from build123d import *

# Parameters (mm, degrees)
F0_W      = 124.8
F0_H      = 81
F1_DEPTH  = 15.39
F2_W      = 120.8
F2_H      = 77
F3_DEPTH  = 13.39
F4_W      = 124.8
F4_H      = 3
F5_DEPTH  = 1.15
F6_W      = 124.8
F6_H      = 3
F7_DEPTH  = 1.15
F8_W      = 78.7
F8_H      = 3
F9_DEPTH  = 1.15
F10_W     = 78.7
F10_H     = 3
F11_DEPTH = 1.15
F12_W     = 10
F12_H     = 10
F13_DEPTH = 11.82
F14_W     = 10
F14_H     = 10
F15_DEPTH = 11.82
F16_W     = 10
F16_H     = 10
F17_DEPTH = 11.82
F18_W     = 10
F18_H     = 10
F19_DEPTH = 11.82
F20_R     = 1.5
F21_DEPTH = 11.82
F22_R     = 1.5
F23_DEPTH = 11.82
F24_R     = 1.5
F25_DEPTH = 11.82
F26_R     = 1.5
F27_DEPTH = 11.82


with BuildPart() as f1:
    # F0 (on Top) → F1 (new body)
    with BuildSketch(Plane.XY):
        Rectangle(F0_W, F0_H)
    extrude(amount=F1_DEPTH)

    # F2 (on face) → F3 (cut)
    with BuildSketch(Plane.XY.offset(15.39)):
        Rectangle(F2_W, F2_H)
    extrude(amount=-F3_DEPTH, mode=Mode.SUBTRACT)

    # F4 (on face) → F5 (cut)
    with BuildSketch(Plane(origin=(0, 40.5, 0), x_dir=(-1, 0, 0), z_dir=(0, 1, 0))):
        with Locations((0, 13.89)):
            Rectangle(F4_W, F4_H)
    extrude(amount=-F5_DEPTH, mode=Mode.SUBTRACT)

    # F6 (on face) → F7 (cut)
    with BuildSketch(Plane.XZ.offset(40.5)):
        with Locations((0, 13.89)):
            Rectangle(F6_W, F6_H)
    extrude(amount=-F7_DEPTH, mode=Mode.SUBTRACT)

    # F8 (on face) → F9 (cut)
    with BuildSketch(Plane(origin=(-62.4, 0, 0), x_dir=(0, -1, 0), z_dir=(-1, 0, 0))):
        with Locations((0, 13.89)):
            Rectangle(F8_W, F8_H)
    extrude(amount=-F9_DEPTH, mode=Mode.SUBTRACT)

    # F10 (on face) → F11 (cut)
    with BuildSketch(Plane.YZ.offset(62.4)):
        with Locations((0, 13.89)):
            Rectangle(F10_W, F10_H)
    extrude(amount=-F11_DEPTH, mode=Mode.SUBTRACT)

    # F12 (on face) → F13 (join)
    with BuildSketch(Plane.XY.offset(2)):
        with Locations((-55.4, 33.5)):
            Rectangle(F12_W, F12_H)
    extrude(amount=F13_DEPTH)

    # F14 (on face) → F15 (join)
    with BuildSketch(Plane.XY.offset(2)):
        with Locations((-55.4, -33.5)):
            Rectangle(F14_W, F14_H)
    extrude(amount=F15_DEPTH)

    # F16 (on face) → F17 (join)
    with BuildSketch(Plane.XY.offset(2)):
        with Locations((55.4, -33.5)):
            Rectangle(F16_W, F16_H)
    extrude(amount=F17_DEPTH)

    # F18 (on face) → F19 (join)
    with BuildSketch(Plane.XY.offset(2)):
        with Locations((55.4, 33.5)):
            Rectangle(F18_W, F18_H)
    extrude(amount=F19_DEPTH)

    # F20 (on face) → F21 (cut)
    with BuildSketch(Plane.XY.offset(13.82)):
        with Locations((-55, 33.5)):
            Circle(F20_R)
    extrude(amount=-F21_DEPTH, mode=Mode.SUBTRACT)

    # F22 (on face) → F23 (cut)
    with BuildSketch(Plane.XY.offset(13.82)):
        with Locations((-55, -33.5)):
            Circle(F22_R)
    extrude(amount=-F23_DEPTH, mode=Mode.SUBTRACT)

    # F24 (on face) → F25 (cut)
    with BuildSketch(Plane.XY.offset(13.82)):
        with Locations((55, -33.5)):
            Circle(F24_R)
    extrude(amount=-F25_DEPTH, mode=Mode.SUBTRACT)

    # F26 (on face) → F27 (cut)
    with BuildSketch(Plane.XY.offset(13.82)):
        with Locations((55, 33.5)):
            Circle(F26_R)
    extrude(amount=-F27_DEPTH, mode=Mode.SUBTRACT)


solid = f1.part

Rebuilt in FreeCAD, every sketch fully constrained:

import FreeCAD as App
import Part
import Sketcher
from FreeCAD import Vector
Q = App.Units.Quantity


def add_polygon(sketch, points):
    """Adds a closed chain of lines whose ends are joined by coincident constraints."""
    first, n = sketch.GeometryCount, len(points)
    for a, b in zip(points, points[1:] + points[:1]):
        sketch.addGeometry(Part.LineSegment(App.Vector(*a, 0), App.Vector(*b, 0)), False)
    for i in range(n):
        sketch.addConstraint(Sketcher.Constraint("Coincident", first + i, 2, first + (i + 1) % n, 1))

doc = App.newDocument("Part")
body = doc.addObject("PartDesign::Body", "Body")

# Sketch on XY plane
sketch1 = body.newObject("Sketcher::SketchObject", "Sketch")
sketch1.AttachmentSupport = (doc.getObject("XY_Plane"), [""])
sketch1.MapMode = "FlatFace"
add_polygon(sketch1, [(-62, 40), (-62, -40), (62, -40), (62, 40)])  # lines 0-3
sketch1.addConstraint(Sketcher.Constraint("Vertical", 0))
sketch1.addConstraint(Sketcher.Constraint("Horizontal", 1))
sketch1.addConstraint(Sketcher.Constraint("Vertical", 2))
sketch1.addConstraint(Sketcher.Constraint("Horizontal", 3))
sketch1.addConstraint(Sketcher.Constraint("Symmetric", 0, 2, 2, 2, -1, 1))
sketch1.addConstraint(Sketcher.Constraint("DistanceY", 0, 2, 0, 1, Q("81 mm")))
sketch1.addConstraint(Sketcher.Constraint("DistanceX", 1, 1, 1, 2, Q("124.8 mm")))
pad1 = body.newObject("PartDesign::Pad", "Pad")
pad1.Profile = sketch1
pad1.Length = 15.39

# Sketch on XY plane
sketch2 = body.newObject("Sketcher::SketchObject", "Sketch001")
sketch2.AttachmentSupport = (doc.getObject("XY_Plane"), [""])
sketch2.MapMode = "FlatFace"
sketch2.AttachmentOffset = App.Placement(Vector(0, 0, 15.39), App.Rotation())
add_polygon(sketch2, [(-60, 38), (-60, -38), (60, -38), (60, 38)])  # lines 0-3
sketch2.addConstraint(Sketcher.Constraint("Vertical", 0))
sketch2.addConstraint(Sketcher.Constraint("Horizontal", 1))
sketch2.addConstraint(Sketcher.Constraint("Vertical", 2))
sketch2.addConstraint(Sketcher.Constraint("Horizontal", 3))
sketch2.addConstraint(Sketcher.Constraint("Symmetric", 0, 2, 2, 2, -1, 1))
sketch2.addConstraint(Sketcher.Constraint("DistanceY", 0, 2, 0, 1, Q("77 mm")))
sketch2.addConstraint(Sketcher.Constraint("DistanceX", 1, 1, 1, 2, Q("120.8 mm")))
pocket1 = body.newObject("PartDesign::Pocket", "Pocket")
pocket1.Profile = sketch2
pocket1.Length = 13.39

# Sketch on XZ plane
sketch3 = body.newObject("Sketcher::SketchObject", "Sketch002")
sketch3.AttachmentSupport = (doc.getObject("XZ_Plane"), [""])
sketch3.MapMode = "FlatFace"
sketch3.AttachmentOffset = App.Placement(Vector(0, 0, -40.5), App.Rotation())
add_polygon(sketch3, [(62.4, 15.4), (62.4, 12.4), (-62.4, 12.4), (-62.4, 15.4)])  # lines 0-3
sketch3.addConstraint(Sketcher.Constraint("Vertical", 0))
sketch3.addConstraint(Sketcher.Constraint("Horizontal", 1))
sketch3.addConstraint(Sketcher.Constraint("Vertical", 2))
sketch3.addConstraint(Sketcher.Constraint("Horizontal", 3))
sketch3.addConstraint(Sketcher.Constraint("DistanceY", 0, 2, 0, 1, Q("3 mm")))
sketch3.addConstraint(Sketcher.Constraint("DistanceX", 1, 2, 1, 1, Q("124.8 mm")))
sketch3.addConstraint(Sketcher.Constraint("DistanceX", -1, 1, 0, 2, Q("62.4 mm")))
sketch3.addConstraint(Sketcher.Constraint("DistanceY", -1, 1, 0, 2, Q("12.39 mm")))
pocket2 = body.newObject("PartDesign::Pocket", "Pocket001")
pocket2.Profile = sketch3
pocket2.Length = 1.15
pocket2.Reversed = True

# Sketch on XZ plane
sketch4 = body.newObject("Sketcher::SketchObject", "Sketch003")
sketch4.AttachmentSupport = (doc.getObject("XZ_Plane"), [""])
sketch4.MapMode = "FlatFace"
sketch4.AttachmentOffset = App.Placement(Vector(0, 0, 40.5), App.Rotation())
add_polygon(sketch4, [(-62.4, 15.4), (-62.4, 12.4), (62.4, 12.4), (62.4, 15.4)])  # lines 0-3
sketch4.addConstraint(Sketcher.Constraint("Vertical", 0))
sketch4.addConstraint(Sketcher.Constraint("Horizontal", 1))
sketch4.addConstraint(Sketcher.Constraint("Vertical", 2))
sketch4.addConstraint(Sketcher.Constraint("Horizontal", 3))
sketch4.addConstraint(Sketcher.Constraint("DistanceY", 0, 2, 0, 1, Q("3 mm")))
sketch4.addConstraint(Sketcher.Constraint("DistanceX", 1, 1, 1, 2, Q("124.8 mm")))
sketch4.addConstraint(Sketcher.Constraint("DistanceX", 0, 2, -1, 1, Q("62.4 mm")))
sketch4.addConstraint(Sketcher.Constraint("DistanceY", -1, 1, 0, 2, Q("12.39 mm")))
pocket3 = body.newObject("PartDesign::Pocket", "Pocket002")
pocket3.Profile = sketch4
pocket3.Length = 1.15

# Sketch on YZ plane
sketch5 = body.newObject("Sketcher::SketchObject", "Sketch004")
sketch5.AttachmentSupport = (doc.getObject("YZ_Plane"), [""])
sketch5.MapMode = "FlatFace"
sketch5.AttachmentOffset = App.Placement(Vector(0, 0, -62.4), App.Rotation())
add_polygon(sketch5, [(39.4, 15.4), (39.4, 12.4), (-39.4, 12.4), (-39.4, 15.4)])  # lines 0-3
sketch5.addConstraint(Sketcher.Constraint("Vertical", 0))
sketch5.addConstraint(Sketcher.Constraint("Horizontal", 1))
sketch5.addConstraint(Sketcher.Constraint("Vertical", 2))
sketch5.addConstraint(Sketcher.Constraint("Horizontal", 3))
sketch5.addConstraint(Sketcher.Constraint("DistanceY", 0, 2, 0, 1, Q("3 mm")))
sketch5.addConstraint(Sketcher.Constraint("DistanceX", 1, 2, 1, 1, Q("78.7 mm")))
sketch5.addConstraint(Sketcher.Constraint("DistanceX", -1, 1, 0, 2, Q("39.35 mm")))
sketch5.addConstraint(Sketcher.Constraint("DistanceY", -1, 1, 0, 2, Q("12.39 mm")))
pocket4 = body.newObject("PartDesign::Pocket", "Pocket003")
pocket4.Profile = sketch5
pocket4.Length = 1.15
pocket4.Reversed = True

# Sketch on YZ plane
sketch6 = body.newObject("Sketcher::SketchObject", "Sketch005")
sketch6.AttachmentSupport = (doc.getObject("YZ_Plane"), [""])
sketch6.MapMode = "FlatFace"
sketch6.AttachmentOffset = App.Placement(Vector(0, 0, 62.4), App.Rotation())
add_polygon(sketch6, [(-39.4, 15.4), (-39.4, 12.4), (39.4, 12.4), (39.4, 15.4)])  # lines 0-3
sketch6.addConstraint(Sketcher.Constraint("Vertical", 0))
sketch6.addConstraint(Sketcher.Constraint("Horizontal", 1))
sketch6.addConstraint(Sketcher.Constraint("Vertical", 2))
sketch6.addConstraint(Sketcher.Constraint("Horizontal", 3))
sketch6.addConstraint(Sketcher.Constraint("DistanceY", 0, 2, 0, 1, Q("3 mm")))
sketch6.addConstraint(Sketcher.Constraint("DistanceX", 1, 1, 1, 2, Q("78.7 mm")))
sketch6.addConstraint(Sketcher.Constraint("DistanceX", 0, 2, -1, 1, Q("39.35 mm")))
sketch6.addConstraint(Sketcher.Constraint("DistanceY", -1, 1, 0, 2, Q("12.39 mm")))
pocket5 = body.newObject("PartDesign::Pocket", "Pocket004")
pocket5.Profile = sketch6
pocket5.Length = 1.15

# Sketch on XY plane
sketch7 = body.newObject("Sketcher::SketchObject", "Sketch006")
sketch7.AttachmentSupport = (doc.getObject("XY_Plane"), [""])
sketch7.MapMode = "FlatFace"
sketch7.AttachmentOffset = App.Placement(Vector(0, 0, 2), App.Rotation())
add_polygon(sketch7, [(-60, 38), (-60, 28), (-50, 28), (-50, 38)])  # lines 0-3
sketch7.addConstraint(Sketcher.Constraint("Vertical", 0))
sketch7.addConstraint(Sketcher.Constraint("Horizontal", 1))
sketch7.addConstraint(Sketcher.Constraint("Vertical", 2))
sketch7.addConstraint(Sketcher.Constraint("Horizontal", 3))
sketch7.addConstraint(Sketcher.Constraint("Equal", 3, 0))
sketch7.addConstraint(Sketcher.Constraint("DistanceX", 1, 1, 1, 2, Q("10 mm")))
sketch7.addConstraint(Sketcher.Constraint("DistanceX", 0, 2, -1, 1, Q("60.4 mm")))
sketch7.addConstraint(Sketcher.Constraint("DistanceY", -1, 1, 0, 2, Q("28.5 mm")))
pad2 = body.newObject("PartDesign::Pad", "Pad001")
pad2.Profile = sketch7
pad2.Length = 11.82

# Sketch on XY plane
sketch8 = body.newObject("Sketcher::SketchObject", "Sketch007")
sketch8.AttachmentSupport = (doc.getObject("XY_Plane"), [""])
sketch8.MapMode = "FlatFace"
sketch8.AttachmentOffset = App.Placement(Vector(0, 0, 2), App.Rotation())
add_polygon(sketch8, [(-60, -28), (-60, -38), (-50, -38), (-50, -28)])  # lines 0-3
sketch8.addConstraint(Sketcher.Constraint("Vertical", 0))
sketch8.addConstraint(Sketcher.Constraint("Horizontal", 1))
sketch8.addConstraint(Sketcher.Constraint("Vertical", 2))
sketch8.addConstraint(Sketcher.Constraint("Horizontal", 3))
sketch8.addConstraint(Sketcher.Constraint("Equal", 3, 0))
sketch8.addConstraint(Sketcher.Constraint("DistanceX", 1, 1, 1, 2, Q("10 mm")))
sketch8.addConstraint(Sketcher.Constraint("DistanceX", 0, 2, -1, 1, Q("60.4 mm")))
sketch8.addConstraint(Sketcher.Constraint("DistanceY", 0, 2, -1, 1, Q("38.5 mm")))
pad3 = body.newObject("PartDesign::Pad", "Pad002")
pad3.Profile = sketch8
pad3.Length = 11.82

# Sketch on XY plane
sketch9 = body.newObject("Sketcher::SketchObject", "Sketch008")
sketch9.AttachmentSupport = (doc.getObject("XY_Plane"), [""])
sketch9.MapMode = "FlatFace"
sketch9.AttachmentOffset = App.Placement(Vector(0, 0, 2), App.Rotation())
add_polygon(sketch9, [(50, -28), (50, -38), (60, -38), (60, -28)])  # lines 0-3
sketch9.addConstraint(Sketcher.Constraint("Vertical", 0))
sketch9.addConstraint(Sketcher.Constraint("Horizontal", 1))
sketch9.addConstraint(Sketcher.Constraint("Vertical", 2))
sketch9.addConstraint(Sketcher.Constraint("Horizontal", 3))
sketch9.addConstraint(Sketcher.Constraint("Equal", 3, 0))
sketch9.addConstraint(Sketcher.Constraint("DistanceX", 1, 1, 1, 2, Q("10 mm")))
sketch9.addConstraint(Sketcher.Constraint("DistanceX", -1, 1, 0, 2, Q("50.4 mm")))
sketch9.addConstraint(Sketcher.Constraint("DistanceY", 0, 2, -1, 1, Q("38.5 mm")))
pad4 = body.newObject("PartDesign::Pad", "Pad003")
pad4.Profile = sketch9
pad4.Length = 11.82

# Sketch on XY plane
sketch10 = body.newObject("Sketcher::SketchObject", "Sketch009")
sketch10.AttachmentSupport = (doc.getObject("XY_Plane"), [""])
sketch10.MapMode = "FlatFace"
sketch10.AttachmentOffset = App.Placement(Vector(0, 0, 2), App.Rotation())
add_polygon(sketch10, [(50, 38), (50, 28), (60, 28), (60, 38)])  # lines 0-3
sketch10.addConstraint(Sketcher.Constraint("Vertical", 0))
sketch10.addConstraint(Sketcher.Constraint("Horizontal", 1))
sketch10.addConstraint(Sketcher.Constraint("Vertical", 2))
sketch10.addConstraint(Sketcher.Constraint("Horizontal", 3))
sketch10.addConstraint(Sketcher.Constraint("Equal", 3, 0))
sketch10.addConstraint(Sketcher.Constraint("DistanceX", 1, 1, 1, 2, Q("10 mm")))
sketch10.addConstraint(Sketcher.Constraint("DistanceX", -1, 1, 0, 2, Q("50.4 mm")))
sketch10.addConstraint(Sketcher.Constraint("DistanceY", -1, 1, 0, 2, Q("28.5 mm")))
pad5 = body.newObject("PartDesign::Pad", "Pad004")
pad5.Profile = sketch10
pad5.Length = 11.82

# Sketch on XY plane
sketch11 = body.newObject("Sketcher::SketchObject", "Sketch010")
sketch11.AttachmentSupport = (doc.getObject("XY_Plane"), [""])
sketch11.MapMode = "FlatFace"
sketch11.AttachmentOffset = App.Placement(Vector(0, 0, 13.82), App.Rotation())
sketch11.addGeometry(Part.Circle(Vector(-55, 33.5, 0), Vector(0, 0, 1), 1.5), False)
sketch11.addConstraint(Sketcher.Constraint("Diameter", 0, Q("3 mm")))
sketch11.addConstraint(Sketcher.Constraint("DistanceX", 0, 3, -1, 1, Q("55 mm")))
sketch11.addConstraint(Sketcher.Constraint("DistanceY", -1, 1, 0, 3, Q("33.5 mm")))
pocket6 = body.newObject("PartDesign::Pocket", "Pocket005")
pocket6.Profile = sketch11
pocket6.Length = 11.82

# Sketch on XY plane
sketch12 = body.newObject("Sketcher::SketchObject", "Sketch011")
sketch12.AttachmentSupport = (doc.getObject("XY_Plane"), [""])
sketch12.MapMode = "FlatFace"
sketch12.AttachmentOffset = App.Placement(Vector(0, 0, 13.82), App.Rotation())
sketch12.addGeometry(Part.Circle(Vector(-55, -33.5, 0), Vector(0, 0, 1), 1.5), False)
sketch12.addConstraint(Sketcher.Constraint("Diameter", 0, Q("3 mm")))
sketch12.addConstraint(Sketcher.Constraint("DistanceX", 0, 3, -1, 1, Q("55 mm")))
sketch12.addConstraint(Sketcher.Constraint("DistanceY", 0, 3, -1, 1, Q("33.5 mm")))
pocket7 = body.newObject("PartDesign::Pocket", "Pocket006")
pocket7.Profile = sketch12
pocket7.Length = 11.82

# Sketch on XY plane
sketch13 = body.newObject("Sketcher::SketchObject", "Sketch012")
sketch13.AttachmentSupport = (doc.getObject("XY_Plane"), [""])
sketch13.MapMode = "FlatFace"
sketch13.AttachmentOffset = App.Placement(Vector(0, 0, 13.82), App.Rotation())
sketch13.addGeometry(Part.Circle(Vector(55, -33.5, 0), Vector(0, 0, 1), 1.5), False)
sketch13.addConstraint(Sketcher.Constraint("Diameter", 0, Q("3 mm")))
sketch13.addConstraint(Sketcher.Constraint("DistanceX", -1, 1, 0, 3, Q("55 mm")))
sketch13.addConstraint(Sketcher.Constraint("DistanceY", 0, 3, -1, 1, Q("33.5 mm")))
pocket8 = body.newObject("PartDesign::Pocket", "Pocket007")
pocket8.Profile = sketch13
pocket8.Length = 11.82

# Sketch on XY plane
sketch14 = body.newObject("Sketcher::SketchObject", "Sketch013")
sketch14.AttachmentSupport = (doc.getObject("XY_Plane"), [""])
sketch14.MapMode = "FlatFace"
sketch14.AttachmentOffset = App.Placement(Vector(0, 0, 13.82), App.Rotation())
sketch14.addGeometry(Part.Circle(Vector(55, 33.5, 0), Vector(0, 0, 1), 1.5), False)
sketch14.addConstraint(Sketcher.Constraint("Diameter", 0, Q("3 mm")))
sketch14.addConstraint(Sketcher.Constraint("DistanceX", -1, 1, 0, 3, Q("55 mm")))
sketch14.addConstraint(Sketcher.Constraint("DistanceY", -1, 1, 0, 3, Q("33.5 mm")))
pocket9 = body.newObject("PartDesign::Pocket", "Pocket008")
pocket9.Profile = sketch14
pocket9.Length = 11.82

doc.recompute()
